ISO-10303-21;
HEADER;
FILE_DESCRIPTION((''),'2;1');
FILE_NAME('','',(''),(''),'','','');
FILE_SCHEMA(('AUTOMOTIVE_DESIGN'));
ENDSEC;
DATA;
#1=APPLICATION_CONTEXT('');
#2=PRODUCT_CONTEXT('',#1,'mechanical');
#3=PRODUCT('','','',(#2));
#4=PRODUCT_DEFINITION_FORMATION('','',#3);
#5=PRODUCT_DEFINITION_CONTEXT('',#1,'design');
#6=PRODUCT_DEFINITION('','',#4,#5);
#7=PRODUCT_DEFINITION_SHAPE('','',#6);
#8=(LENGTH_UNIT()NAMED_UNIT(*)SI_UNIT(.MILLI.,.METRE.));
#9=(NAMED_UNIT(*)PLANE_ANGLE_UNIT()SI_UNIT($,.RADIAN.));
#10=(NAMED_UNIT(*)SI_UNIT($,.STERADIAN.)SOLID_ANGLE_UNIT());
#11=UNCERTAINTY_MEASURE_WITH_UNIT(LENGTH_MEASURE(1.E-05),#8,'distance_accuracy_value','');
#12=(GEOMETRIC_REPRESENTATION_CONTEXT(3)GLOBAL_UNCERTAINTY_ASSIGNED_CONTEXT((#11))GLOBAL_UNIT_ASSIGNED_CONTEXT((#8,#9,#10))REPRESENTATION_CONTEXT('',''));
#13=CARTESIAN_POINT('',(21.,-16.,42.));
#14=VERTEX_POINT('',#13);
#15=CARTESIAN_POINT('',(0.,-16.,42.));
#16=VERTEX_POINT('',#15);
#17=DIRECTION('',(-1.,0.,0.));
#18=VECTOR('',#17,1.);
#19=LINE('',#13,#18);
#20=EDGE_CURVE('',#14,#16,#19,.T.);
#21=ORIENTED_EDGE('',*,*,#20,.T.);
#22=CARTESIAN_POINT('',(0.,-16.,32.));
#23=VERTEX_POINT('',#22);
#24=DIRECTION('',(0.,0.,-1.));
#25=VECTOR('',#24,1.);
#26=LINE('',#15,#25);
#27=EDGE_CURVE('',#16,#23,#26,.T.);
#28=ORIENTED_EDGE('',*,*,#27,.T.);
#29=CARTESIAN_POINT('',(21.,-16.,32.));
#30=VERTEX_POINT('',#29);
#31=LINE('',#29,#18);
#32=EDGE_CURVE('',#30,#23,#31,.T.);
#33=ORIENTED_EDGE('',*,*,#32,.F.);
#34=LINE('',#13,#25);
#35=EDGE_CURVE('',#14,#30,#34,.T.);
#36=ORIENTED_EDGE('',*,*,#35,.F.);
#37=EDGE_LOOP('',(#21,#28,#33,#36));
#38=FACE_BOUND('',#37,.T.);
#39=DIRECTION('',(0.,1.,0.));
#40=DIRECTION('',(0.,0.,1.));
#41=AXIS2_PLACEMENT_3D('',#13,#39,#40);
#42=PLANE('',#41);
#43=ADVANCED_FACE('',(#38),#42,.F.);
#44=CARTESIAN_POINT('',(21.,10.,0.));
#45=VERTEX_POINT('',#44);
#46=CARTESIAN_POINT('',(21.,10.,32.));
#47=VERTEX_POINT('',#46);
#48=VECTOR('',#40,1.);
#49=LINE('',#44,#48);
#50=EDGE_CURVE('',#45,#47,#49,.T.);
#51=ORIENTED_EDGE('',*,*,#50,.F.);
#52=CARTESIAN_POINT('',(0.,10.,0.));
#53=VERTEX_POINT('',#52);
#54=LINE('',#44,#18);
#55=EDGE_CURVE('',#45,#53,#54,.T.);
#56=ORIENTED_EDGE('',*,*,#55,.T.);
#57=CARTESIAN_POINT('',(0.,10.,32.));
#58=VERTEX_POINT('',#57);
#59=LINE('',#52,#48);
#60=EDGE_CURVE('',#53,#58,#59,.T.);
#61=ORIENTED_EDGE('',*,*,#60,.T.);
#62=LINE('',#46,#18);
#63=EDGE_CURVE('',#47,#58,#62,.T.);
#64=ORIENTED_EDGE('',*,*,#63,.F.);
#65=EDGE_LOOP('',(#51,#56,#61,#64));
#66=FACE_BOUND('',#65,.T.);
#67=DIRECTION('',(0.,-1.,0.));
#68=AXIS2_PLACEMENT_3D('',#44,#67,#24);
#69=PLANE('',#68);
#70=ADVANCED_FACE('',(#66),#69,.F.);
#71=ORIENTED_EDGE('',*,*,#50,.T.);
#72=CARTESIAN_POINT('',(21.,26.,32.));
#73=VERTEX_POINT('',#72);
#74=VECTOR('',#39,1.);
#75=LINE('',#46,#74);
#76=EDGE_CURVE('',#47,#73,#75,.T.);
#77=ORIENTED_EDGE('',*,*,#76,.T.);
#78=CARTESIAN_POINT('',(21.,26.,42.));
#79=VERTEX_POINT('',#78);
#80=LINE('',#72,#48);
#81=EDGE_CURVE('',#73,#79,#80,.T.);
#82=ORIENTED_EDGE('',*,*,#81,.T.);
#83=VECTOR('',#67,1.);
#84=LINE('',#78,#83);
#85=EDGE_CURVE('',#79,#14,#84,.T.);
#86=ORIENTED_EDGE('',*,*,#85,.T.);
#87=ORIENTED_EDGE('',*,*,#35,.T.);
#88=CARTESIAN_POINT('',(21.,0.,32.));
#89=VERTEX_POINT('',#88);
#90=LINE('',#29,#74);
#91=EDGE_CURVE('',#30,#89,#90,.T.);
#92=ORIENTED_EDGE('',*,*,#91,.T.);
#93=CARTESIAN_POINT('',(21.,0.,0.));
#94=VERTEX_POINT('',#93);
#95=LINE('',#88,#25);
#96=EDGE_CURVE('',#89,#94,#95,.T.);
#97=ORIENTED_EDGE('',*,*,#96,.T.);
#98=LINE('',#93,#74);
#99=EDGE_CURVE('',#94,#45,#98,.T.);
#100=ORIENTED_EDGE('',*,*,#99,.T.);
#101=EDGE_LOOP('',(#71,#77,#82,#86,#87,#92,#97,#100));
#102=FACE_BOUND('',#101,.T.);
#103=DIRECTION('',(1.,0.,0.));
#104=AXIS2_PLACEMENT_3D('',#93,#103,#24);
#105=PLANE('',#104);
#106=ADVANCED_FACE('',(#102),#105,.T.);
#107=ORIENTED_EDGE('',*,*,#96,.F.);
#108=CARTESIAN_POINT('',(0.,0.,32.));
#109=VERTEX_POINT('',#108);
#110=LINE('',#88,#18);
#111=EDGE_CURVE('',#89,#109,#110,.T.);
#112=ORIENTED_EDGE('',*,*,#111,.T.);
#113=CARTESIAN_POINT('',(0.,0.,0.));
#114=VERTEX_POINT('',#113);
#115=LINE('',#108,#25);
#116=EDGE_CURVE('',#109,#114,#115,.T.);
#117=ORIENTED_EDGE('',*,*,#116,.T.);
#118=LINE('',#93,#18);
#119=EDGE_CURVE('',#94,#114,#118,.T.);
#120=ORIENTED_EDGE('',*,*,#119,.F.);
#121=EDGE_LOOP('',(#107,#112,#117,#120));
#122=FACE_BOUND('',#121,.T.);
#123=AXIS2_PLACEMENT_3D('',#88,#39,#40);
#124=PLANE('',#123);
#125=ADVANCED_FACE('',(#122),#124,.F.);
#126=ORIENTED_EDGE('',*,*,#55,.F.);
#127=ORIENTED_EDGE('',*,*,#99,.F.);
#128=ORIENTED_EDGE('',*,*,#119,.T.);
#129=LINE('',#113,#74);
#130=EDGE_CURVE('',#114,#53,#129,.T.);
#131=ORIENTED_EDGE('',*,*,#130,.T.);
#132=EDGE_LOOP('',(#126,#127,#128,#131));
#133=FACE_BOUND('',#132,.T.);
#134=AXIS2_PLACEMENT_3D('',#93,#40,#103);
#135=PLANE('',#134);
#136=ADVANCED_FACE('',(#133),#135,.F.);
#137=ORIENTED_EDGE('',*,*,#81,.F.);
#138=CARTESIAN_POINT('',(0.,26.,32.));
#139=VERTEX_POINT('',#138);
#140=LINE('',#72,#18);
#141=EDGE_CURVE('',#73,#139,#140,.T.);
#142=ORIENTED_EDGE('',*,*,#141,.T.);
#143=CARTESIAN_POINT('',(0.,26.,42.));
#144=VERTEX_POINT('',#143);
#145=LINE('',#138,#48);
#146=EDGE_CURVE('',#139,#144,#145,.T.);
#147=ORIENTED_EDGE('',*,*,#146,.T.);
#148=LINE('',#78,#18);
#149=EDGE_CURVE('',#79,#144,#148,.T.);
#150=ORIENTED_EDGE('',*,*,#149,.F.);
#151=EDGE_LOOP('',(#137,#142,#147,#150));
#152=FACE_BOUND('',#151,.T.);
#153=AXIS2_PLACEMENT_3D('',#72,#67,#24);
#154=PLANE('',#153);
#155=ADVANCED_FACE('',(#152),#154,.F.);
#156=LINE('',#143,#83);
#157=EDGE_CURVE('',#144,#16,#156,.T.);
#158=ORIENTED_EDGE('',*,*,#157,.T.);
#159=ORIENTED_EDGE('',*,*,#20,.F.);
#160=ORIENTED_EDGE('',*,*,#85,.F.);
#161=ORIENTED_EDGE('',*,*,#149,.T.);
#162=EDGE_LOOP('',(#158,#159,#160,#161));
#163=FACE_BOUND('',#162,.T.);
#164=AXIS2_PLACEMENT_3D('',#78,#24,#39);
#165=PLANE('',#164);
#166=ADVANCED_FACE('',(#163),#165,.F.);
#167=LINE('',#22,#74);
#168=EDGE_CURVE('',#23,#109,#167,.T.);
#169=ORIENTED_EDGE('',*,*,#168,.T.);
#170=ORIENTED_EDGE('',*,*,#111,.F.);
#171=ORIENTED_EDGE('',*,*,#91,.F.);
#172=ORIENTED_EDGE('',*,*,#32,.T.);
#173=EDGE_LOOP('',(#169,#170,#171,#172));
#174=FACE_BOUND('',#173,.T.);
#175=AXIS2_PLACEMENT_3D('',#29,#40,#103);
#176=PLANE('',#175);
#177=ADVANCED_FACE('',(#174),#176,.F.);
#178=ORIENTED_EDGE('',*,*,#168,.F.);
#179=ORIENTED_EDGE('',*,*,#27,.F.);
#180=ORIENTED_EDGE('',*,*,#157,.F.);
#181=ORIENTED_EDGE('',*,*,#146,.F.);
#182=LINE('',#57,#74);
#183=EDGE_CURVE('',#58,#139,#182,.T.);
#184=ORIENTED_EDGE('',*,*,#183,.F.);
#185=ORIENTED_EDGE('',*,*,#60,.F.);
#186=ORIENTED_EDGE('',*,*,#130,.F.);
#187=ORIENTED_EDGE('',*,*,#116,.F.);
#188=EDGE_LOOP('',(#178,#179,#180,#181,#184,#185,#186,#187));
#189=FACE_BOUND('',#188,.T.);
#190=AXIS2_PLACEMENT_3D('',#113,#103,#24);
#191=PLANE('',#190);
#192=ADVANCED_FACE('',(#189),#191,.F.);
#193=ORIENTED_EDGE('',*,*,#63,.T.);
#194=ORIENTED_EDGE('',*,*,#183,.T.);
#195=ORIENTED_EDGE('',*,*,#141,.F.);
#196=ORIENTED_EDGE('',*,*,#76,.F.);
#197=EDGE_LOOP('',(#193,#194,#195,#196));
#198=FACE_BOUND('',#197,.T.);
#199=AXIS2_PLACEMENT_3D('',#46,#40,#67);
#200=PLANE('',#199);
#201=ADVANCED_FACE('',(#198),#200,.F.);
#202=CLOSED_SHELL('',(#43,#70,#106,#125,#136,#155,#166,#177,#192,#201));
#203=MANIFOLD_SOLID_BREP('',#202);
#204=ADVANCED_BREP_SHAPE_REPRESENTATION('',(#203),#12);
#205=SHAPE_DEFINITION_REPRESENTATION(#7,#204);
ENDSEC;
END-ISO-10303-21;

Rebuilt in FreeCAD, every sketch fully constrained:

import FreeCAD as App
import Part
import Sketcher

V = App.Vector
Q = App.Units.Quantity


def add_polygon(sketch, points):
    """Adds a closed chain of lines whose ends are joined by coincident constraints."""
    first, n = sketch.GeometryCount, len(points)
    for a, b in zip(points, points[1:] + points[:1]):
        sketch.addGeometry(Part.LineSegment(App.Vector(*a, 0), App.Vector(*b, 0)), False)
    for i in range(n):
        sketch.addConstraint(Sketcher.Constraint("Coincident", first + i, 2, first + (i + 1) % n, 1))

doc = App.newDocument("Part")
body = doc.addObject("PartDesign::Body", "Body")

sketch1 = body.newObject("Sketcher::SketchObject", "Sketch")
sketch1.AttachmentSupport = (doc.getObject("YZ_Plane"), [""])
sketch1.MapMode = "FlatFace"
add_polygon(sketch1, [(0, 0), (10, 0), (10, 32), (26, 32), (26, 42), (-16, 42), (-16, 32), (0, 32)])
sketch1.addConstraint([
    Sketcher.Constraint("Horizontal", 0),
    Sketcher.Constraint("Vertical", 1),
    Sketcher.Constraint("Horizontal", 2),
    Sketcher.Constraint("Vertical", 3),
    Sketcher.Constraint("Horizontal", 4),
    Sketcher.Constraint("Vertical", 5),
    Sketcher.Constraint("Horizontal", 6),
    Sketcher.Constraint("Vertical", 7),
    Sketcher.Constraint("Coincident", 7, 2, -1, 1),
    Sketcher.Constraint("Horizontal", 2, 2, 5, 2),
    Sketcher.Constraint("Equal", 2, 6),
    Sketcher.Constraint("Equal", 0, 3),
    Sketcher.Constraint("DistanceX", 0, 1, 0, 2, Q("10 mm")),
    Sketcher.Constraint("DistanceX", 2, 1, 2, 2, Q("16 mm")),
    Sketcher.Constraint("DistanceY", 1, 1, 1, 2, Q("32 mm")),
])
pad1 = body.newObject("PartDesign::Pad", "Pad")
pad1.Profile = sketch1
pad1.Length = 21

doc.recompute()
